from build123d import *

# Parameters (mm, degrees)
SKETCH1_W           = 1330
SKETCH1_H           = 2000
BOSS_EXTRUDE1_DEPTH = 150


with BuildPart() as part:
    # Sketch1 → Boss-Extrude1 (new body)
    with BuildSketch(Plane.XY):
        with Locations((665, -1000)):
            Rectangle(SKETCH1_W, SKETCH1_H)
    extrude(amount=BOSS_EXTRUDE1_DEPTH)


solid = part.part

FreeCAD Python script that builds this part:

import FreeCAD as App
import Part
import Sketcher

V = App.Vector
Q = App.Units.Quantity

doc = App.newDocument("Part")
body = doc.addObject("PartDesign::Body", "Body")

sketch1 = body.newObject("Sketcher::SketchObject", "Sketch")
sketch1.AttachmentSupport = (doc.getObject("XY_Plane"), [""])
sketch1.MapMode = "FlatFace"
sketch1.addGeometry([
    Part.LineSegment(V(0, 0, 0), V(0, -2000, 0)),
    Part.LineSegment(V(0, -2000, 0), V(1330, -2000, 0)),
    Part.LineSegment(V(1330, -2000, 0), V(1330, 0, 0)),
    Part.LineSegment(V(1330, 0, 0), V(0, 0, 0)),
], False)
sketch1.addConstraint([
    Sketcher.Constraint("Coincident", 0, 2, 1, 1),
    Sketcher.Constraint("Coincident", 1, 2, 2, 1),
    Sketcher.Constraint("Coincident", 2, 2, 3, 1),
    Sketcher.Constraint("Coincident", 3, 2, 0, 1),
    Sketcher.Constraint("Vertical", 0),
    Sketcher.Constraint("Horizontal", 1),
    Sketcher.Constraint("Vertical", 2),
    Sketcher.Constraint("Horizontal", 3),
    Sketcher.Constraint("Coincident", 3, 2, -1, 1),
    Sketcher.Constraint("DistanceX", 1, 1, 1, 2, Q("1330 mm")),
    Sketcher.Constraint("DistanceY", 0, 2, 0, 1, Q("2000 mm")),
])
pad1 = body.newObject("PartDesign::Pad", "Pad")
pad1.Profile = sketch1
pad1.Length = 150

doc.recompute()
